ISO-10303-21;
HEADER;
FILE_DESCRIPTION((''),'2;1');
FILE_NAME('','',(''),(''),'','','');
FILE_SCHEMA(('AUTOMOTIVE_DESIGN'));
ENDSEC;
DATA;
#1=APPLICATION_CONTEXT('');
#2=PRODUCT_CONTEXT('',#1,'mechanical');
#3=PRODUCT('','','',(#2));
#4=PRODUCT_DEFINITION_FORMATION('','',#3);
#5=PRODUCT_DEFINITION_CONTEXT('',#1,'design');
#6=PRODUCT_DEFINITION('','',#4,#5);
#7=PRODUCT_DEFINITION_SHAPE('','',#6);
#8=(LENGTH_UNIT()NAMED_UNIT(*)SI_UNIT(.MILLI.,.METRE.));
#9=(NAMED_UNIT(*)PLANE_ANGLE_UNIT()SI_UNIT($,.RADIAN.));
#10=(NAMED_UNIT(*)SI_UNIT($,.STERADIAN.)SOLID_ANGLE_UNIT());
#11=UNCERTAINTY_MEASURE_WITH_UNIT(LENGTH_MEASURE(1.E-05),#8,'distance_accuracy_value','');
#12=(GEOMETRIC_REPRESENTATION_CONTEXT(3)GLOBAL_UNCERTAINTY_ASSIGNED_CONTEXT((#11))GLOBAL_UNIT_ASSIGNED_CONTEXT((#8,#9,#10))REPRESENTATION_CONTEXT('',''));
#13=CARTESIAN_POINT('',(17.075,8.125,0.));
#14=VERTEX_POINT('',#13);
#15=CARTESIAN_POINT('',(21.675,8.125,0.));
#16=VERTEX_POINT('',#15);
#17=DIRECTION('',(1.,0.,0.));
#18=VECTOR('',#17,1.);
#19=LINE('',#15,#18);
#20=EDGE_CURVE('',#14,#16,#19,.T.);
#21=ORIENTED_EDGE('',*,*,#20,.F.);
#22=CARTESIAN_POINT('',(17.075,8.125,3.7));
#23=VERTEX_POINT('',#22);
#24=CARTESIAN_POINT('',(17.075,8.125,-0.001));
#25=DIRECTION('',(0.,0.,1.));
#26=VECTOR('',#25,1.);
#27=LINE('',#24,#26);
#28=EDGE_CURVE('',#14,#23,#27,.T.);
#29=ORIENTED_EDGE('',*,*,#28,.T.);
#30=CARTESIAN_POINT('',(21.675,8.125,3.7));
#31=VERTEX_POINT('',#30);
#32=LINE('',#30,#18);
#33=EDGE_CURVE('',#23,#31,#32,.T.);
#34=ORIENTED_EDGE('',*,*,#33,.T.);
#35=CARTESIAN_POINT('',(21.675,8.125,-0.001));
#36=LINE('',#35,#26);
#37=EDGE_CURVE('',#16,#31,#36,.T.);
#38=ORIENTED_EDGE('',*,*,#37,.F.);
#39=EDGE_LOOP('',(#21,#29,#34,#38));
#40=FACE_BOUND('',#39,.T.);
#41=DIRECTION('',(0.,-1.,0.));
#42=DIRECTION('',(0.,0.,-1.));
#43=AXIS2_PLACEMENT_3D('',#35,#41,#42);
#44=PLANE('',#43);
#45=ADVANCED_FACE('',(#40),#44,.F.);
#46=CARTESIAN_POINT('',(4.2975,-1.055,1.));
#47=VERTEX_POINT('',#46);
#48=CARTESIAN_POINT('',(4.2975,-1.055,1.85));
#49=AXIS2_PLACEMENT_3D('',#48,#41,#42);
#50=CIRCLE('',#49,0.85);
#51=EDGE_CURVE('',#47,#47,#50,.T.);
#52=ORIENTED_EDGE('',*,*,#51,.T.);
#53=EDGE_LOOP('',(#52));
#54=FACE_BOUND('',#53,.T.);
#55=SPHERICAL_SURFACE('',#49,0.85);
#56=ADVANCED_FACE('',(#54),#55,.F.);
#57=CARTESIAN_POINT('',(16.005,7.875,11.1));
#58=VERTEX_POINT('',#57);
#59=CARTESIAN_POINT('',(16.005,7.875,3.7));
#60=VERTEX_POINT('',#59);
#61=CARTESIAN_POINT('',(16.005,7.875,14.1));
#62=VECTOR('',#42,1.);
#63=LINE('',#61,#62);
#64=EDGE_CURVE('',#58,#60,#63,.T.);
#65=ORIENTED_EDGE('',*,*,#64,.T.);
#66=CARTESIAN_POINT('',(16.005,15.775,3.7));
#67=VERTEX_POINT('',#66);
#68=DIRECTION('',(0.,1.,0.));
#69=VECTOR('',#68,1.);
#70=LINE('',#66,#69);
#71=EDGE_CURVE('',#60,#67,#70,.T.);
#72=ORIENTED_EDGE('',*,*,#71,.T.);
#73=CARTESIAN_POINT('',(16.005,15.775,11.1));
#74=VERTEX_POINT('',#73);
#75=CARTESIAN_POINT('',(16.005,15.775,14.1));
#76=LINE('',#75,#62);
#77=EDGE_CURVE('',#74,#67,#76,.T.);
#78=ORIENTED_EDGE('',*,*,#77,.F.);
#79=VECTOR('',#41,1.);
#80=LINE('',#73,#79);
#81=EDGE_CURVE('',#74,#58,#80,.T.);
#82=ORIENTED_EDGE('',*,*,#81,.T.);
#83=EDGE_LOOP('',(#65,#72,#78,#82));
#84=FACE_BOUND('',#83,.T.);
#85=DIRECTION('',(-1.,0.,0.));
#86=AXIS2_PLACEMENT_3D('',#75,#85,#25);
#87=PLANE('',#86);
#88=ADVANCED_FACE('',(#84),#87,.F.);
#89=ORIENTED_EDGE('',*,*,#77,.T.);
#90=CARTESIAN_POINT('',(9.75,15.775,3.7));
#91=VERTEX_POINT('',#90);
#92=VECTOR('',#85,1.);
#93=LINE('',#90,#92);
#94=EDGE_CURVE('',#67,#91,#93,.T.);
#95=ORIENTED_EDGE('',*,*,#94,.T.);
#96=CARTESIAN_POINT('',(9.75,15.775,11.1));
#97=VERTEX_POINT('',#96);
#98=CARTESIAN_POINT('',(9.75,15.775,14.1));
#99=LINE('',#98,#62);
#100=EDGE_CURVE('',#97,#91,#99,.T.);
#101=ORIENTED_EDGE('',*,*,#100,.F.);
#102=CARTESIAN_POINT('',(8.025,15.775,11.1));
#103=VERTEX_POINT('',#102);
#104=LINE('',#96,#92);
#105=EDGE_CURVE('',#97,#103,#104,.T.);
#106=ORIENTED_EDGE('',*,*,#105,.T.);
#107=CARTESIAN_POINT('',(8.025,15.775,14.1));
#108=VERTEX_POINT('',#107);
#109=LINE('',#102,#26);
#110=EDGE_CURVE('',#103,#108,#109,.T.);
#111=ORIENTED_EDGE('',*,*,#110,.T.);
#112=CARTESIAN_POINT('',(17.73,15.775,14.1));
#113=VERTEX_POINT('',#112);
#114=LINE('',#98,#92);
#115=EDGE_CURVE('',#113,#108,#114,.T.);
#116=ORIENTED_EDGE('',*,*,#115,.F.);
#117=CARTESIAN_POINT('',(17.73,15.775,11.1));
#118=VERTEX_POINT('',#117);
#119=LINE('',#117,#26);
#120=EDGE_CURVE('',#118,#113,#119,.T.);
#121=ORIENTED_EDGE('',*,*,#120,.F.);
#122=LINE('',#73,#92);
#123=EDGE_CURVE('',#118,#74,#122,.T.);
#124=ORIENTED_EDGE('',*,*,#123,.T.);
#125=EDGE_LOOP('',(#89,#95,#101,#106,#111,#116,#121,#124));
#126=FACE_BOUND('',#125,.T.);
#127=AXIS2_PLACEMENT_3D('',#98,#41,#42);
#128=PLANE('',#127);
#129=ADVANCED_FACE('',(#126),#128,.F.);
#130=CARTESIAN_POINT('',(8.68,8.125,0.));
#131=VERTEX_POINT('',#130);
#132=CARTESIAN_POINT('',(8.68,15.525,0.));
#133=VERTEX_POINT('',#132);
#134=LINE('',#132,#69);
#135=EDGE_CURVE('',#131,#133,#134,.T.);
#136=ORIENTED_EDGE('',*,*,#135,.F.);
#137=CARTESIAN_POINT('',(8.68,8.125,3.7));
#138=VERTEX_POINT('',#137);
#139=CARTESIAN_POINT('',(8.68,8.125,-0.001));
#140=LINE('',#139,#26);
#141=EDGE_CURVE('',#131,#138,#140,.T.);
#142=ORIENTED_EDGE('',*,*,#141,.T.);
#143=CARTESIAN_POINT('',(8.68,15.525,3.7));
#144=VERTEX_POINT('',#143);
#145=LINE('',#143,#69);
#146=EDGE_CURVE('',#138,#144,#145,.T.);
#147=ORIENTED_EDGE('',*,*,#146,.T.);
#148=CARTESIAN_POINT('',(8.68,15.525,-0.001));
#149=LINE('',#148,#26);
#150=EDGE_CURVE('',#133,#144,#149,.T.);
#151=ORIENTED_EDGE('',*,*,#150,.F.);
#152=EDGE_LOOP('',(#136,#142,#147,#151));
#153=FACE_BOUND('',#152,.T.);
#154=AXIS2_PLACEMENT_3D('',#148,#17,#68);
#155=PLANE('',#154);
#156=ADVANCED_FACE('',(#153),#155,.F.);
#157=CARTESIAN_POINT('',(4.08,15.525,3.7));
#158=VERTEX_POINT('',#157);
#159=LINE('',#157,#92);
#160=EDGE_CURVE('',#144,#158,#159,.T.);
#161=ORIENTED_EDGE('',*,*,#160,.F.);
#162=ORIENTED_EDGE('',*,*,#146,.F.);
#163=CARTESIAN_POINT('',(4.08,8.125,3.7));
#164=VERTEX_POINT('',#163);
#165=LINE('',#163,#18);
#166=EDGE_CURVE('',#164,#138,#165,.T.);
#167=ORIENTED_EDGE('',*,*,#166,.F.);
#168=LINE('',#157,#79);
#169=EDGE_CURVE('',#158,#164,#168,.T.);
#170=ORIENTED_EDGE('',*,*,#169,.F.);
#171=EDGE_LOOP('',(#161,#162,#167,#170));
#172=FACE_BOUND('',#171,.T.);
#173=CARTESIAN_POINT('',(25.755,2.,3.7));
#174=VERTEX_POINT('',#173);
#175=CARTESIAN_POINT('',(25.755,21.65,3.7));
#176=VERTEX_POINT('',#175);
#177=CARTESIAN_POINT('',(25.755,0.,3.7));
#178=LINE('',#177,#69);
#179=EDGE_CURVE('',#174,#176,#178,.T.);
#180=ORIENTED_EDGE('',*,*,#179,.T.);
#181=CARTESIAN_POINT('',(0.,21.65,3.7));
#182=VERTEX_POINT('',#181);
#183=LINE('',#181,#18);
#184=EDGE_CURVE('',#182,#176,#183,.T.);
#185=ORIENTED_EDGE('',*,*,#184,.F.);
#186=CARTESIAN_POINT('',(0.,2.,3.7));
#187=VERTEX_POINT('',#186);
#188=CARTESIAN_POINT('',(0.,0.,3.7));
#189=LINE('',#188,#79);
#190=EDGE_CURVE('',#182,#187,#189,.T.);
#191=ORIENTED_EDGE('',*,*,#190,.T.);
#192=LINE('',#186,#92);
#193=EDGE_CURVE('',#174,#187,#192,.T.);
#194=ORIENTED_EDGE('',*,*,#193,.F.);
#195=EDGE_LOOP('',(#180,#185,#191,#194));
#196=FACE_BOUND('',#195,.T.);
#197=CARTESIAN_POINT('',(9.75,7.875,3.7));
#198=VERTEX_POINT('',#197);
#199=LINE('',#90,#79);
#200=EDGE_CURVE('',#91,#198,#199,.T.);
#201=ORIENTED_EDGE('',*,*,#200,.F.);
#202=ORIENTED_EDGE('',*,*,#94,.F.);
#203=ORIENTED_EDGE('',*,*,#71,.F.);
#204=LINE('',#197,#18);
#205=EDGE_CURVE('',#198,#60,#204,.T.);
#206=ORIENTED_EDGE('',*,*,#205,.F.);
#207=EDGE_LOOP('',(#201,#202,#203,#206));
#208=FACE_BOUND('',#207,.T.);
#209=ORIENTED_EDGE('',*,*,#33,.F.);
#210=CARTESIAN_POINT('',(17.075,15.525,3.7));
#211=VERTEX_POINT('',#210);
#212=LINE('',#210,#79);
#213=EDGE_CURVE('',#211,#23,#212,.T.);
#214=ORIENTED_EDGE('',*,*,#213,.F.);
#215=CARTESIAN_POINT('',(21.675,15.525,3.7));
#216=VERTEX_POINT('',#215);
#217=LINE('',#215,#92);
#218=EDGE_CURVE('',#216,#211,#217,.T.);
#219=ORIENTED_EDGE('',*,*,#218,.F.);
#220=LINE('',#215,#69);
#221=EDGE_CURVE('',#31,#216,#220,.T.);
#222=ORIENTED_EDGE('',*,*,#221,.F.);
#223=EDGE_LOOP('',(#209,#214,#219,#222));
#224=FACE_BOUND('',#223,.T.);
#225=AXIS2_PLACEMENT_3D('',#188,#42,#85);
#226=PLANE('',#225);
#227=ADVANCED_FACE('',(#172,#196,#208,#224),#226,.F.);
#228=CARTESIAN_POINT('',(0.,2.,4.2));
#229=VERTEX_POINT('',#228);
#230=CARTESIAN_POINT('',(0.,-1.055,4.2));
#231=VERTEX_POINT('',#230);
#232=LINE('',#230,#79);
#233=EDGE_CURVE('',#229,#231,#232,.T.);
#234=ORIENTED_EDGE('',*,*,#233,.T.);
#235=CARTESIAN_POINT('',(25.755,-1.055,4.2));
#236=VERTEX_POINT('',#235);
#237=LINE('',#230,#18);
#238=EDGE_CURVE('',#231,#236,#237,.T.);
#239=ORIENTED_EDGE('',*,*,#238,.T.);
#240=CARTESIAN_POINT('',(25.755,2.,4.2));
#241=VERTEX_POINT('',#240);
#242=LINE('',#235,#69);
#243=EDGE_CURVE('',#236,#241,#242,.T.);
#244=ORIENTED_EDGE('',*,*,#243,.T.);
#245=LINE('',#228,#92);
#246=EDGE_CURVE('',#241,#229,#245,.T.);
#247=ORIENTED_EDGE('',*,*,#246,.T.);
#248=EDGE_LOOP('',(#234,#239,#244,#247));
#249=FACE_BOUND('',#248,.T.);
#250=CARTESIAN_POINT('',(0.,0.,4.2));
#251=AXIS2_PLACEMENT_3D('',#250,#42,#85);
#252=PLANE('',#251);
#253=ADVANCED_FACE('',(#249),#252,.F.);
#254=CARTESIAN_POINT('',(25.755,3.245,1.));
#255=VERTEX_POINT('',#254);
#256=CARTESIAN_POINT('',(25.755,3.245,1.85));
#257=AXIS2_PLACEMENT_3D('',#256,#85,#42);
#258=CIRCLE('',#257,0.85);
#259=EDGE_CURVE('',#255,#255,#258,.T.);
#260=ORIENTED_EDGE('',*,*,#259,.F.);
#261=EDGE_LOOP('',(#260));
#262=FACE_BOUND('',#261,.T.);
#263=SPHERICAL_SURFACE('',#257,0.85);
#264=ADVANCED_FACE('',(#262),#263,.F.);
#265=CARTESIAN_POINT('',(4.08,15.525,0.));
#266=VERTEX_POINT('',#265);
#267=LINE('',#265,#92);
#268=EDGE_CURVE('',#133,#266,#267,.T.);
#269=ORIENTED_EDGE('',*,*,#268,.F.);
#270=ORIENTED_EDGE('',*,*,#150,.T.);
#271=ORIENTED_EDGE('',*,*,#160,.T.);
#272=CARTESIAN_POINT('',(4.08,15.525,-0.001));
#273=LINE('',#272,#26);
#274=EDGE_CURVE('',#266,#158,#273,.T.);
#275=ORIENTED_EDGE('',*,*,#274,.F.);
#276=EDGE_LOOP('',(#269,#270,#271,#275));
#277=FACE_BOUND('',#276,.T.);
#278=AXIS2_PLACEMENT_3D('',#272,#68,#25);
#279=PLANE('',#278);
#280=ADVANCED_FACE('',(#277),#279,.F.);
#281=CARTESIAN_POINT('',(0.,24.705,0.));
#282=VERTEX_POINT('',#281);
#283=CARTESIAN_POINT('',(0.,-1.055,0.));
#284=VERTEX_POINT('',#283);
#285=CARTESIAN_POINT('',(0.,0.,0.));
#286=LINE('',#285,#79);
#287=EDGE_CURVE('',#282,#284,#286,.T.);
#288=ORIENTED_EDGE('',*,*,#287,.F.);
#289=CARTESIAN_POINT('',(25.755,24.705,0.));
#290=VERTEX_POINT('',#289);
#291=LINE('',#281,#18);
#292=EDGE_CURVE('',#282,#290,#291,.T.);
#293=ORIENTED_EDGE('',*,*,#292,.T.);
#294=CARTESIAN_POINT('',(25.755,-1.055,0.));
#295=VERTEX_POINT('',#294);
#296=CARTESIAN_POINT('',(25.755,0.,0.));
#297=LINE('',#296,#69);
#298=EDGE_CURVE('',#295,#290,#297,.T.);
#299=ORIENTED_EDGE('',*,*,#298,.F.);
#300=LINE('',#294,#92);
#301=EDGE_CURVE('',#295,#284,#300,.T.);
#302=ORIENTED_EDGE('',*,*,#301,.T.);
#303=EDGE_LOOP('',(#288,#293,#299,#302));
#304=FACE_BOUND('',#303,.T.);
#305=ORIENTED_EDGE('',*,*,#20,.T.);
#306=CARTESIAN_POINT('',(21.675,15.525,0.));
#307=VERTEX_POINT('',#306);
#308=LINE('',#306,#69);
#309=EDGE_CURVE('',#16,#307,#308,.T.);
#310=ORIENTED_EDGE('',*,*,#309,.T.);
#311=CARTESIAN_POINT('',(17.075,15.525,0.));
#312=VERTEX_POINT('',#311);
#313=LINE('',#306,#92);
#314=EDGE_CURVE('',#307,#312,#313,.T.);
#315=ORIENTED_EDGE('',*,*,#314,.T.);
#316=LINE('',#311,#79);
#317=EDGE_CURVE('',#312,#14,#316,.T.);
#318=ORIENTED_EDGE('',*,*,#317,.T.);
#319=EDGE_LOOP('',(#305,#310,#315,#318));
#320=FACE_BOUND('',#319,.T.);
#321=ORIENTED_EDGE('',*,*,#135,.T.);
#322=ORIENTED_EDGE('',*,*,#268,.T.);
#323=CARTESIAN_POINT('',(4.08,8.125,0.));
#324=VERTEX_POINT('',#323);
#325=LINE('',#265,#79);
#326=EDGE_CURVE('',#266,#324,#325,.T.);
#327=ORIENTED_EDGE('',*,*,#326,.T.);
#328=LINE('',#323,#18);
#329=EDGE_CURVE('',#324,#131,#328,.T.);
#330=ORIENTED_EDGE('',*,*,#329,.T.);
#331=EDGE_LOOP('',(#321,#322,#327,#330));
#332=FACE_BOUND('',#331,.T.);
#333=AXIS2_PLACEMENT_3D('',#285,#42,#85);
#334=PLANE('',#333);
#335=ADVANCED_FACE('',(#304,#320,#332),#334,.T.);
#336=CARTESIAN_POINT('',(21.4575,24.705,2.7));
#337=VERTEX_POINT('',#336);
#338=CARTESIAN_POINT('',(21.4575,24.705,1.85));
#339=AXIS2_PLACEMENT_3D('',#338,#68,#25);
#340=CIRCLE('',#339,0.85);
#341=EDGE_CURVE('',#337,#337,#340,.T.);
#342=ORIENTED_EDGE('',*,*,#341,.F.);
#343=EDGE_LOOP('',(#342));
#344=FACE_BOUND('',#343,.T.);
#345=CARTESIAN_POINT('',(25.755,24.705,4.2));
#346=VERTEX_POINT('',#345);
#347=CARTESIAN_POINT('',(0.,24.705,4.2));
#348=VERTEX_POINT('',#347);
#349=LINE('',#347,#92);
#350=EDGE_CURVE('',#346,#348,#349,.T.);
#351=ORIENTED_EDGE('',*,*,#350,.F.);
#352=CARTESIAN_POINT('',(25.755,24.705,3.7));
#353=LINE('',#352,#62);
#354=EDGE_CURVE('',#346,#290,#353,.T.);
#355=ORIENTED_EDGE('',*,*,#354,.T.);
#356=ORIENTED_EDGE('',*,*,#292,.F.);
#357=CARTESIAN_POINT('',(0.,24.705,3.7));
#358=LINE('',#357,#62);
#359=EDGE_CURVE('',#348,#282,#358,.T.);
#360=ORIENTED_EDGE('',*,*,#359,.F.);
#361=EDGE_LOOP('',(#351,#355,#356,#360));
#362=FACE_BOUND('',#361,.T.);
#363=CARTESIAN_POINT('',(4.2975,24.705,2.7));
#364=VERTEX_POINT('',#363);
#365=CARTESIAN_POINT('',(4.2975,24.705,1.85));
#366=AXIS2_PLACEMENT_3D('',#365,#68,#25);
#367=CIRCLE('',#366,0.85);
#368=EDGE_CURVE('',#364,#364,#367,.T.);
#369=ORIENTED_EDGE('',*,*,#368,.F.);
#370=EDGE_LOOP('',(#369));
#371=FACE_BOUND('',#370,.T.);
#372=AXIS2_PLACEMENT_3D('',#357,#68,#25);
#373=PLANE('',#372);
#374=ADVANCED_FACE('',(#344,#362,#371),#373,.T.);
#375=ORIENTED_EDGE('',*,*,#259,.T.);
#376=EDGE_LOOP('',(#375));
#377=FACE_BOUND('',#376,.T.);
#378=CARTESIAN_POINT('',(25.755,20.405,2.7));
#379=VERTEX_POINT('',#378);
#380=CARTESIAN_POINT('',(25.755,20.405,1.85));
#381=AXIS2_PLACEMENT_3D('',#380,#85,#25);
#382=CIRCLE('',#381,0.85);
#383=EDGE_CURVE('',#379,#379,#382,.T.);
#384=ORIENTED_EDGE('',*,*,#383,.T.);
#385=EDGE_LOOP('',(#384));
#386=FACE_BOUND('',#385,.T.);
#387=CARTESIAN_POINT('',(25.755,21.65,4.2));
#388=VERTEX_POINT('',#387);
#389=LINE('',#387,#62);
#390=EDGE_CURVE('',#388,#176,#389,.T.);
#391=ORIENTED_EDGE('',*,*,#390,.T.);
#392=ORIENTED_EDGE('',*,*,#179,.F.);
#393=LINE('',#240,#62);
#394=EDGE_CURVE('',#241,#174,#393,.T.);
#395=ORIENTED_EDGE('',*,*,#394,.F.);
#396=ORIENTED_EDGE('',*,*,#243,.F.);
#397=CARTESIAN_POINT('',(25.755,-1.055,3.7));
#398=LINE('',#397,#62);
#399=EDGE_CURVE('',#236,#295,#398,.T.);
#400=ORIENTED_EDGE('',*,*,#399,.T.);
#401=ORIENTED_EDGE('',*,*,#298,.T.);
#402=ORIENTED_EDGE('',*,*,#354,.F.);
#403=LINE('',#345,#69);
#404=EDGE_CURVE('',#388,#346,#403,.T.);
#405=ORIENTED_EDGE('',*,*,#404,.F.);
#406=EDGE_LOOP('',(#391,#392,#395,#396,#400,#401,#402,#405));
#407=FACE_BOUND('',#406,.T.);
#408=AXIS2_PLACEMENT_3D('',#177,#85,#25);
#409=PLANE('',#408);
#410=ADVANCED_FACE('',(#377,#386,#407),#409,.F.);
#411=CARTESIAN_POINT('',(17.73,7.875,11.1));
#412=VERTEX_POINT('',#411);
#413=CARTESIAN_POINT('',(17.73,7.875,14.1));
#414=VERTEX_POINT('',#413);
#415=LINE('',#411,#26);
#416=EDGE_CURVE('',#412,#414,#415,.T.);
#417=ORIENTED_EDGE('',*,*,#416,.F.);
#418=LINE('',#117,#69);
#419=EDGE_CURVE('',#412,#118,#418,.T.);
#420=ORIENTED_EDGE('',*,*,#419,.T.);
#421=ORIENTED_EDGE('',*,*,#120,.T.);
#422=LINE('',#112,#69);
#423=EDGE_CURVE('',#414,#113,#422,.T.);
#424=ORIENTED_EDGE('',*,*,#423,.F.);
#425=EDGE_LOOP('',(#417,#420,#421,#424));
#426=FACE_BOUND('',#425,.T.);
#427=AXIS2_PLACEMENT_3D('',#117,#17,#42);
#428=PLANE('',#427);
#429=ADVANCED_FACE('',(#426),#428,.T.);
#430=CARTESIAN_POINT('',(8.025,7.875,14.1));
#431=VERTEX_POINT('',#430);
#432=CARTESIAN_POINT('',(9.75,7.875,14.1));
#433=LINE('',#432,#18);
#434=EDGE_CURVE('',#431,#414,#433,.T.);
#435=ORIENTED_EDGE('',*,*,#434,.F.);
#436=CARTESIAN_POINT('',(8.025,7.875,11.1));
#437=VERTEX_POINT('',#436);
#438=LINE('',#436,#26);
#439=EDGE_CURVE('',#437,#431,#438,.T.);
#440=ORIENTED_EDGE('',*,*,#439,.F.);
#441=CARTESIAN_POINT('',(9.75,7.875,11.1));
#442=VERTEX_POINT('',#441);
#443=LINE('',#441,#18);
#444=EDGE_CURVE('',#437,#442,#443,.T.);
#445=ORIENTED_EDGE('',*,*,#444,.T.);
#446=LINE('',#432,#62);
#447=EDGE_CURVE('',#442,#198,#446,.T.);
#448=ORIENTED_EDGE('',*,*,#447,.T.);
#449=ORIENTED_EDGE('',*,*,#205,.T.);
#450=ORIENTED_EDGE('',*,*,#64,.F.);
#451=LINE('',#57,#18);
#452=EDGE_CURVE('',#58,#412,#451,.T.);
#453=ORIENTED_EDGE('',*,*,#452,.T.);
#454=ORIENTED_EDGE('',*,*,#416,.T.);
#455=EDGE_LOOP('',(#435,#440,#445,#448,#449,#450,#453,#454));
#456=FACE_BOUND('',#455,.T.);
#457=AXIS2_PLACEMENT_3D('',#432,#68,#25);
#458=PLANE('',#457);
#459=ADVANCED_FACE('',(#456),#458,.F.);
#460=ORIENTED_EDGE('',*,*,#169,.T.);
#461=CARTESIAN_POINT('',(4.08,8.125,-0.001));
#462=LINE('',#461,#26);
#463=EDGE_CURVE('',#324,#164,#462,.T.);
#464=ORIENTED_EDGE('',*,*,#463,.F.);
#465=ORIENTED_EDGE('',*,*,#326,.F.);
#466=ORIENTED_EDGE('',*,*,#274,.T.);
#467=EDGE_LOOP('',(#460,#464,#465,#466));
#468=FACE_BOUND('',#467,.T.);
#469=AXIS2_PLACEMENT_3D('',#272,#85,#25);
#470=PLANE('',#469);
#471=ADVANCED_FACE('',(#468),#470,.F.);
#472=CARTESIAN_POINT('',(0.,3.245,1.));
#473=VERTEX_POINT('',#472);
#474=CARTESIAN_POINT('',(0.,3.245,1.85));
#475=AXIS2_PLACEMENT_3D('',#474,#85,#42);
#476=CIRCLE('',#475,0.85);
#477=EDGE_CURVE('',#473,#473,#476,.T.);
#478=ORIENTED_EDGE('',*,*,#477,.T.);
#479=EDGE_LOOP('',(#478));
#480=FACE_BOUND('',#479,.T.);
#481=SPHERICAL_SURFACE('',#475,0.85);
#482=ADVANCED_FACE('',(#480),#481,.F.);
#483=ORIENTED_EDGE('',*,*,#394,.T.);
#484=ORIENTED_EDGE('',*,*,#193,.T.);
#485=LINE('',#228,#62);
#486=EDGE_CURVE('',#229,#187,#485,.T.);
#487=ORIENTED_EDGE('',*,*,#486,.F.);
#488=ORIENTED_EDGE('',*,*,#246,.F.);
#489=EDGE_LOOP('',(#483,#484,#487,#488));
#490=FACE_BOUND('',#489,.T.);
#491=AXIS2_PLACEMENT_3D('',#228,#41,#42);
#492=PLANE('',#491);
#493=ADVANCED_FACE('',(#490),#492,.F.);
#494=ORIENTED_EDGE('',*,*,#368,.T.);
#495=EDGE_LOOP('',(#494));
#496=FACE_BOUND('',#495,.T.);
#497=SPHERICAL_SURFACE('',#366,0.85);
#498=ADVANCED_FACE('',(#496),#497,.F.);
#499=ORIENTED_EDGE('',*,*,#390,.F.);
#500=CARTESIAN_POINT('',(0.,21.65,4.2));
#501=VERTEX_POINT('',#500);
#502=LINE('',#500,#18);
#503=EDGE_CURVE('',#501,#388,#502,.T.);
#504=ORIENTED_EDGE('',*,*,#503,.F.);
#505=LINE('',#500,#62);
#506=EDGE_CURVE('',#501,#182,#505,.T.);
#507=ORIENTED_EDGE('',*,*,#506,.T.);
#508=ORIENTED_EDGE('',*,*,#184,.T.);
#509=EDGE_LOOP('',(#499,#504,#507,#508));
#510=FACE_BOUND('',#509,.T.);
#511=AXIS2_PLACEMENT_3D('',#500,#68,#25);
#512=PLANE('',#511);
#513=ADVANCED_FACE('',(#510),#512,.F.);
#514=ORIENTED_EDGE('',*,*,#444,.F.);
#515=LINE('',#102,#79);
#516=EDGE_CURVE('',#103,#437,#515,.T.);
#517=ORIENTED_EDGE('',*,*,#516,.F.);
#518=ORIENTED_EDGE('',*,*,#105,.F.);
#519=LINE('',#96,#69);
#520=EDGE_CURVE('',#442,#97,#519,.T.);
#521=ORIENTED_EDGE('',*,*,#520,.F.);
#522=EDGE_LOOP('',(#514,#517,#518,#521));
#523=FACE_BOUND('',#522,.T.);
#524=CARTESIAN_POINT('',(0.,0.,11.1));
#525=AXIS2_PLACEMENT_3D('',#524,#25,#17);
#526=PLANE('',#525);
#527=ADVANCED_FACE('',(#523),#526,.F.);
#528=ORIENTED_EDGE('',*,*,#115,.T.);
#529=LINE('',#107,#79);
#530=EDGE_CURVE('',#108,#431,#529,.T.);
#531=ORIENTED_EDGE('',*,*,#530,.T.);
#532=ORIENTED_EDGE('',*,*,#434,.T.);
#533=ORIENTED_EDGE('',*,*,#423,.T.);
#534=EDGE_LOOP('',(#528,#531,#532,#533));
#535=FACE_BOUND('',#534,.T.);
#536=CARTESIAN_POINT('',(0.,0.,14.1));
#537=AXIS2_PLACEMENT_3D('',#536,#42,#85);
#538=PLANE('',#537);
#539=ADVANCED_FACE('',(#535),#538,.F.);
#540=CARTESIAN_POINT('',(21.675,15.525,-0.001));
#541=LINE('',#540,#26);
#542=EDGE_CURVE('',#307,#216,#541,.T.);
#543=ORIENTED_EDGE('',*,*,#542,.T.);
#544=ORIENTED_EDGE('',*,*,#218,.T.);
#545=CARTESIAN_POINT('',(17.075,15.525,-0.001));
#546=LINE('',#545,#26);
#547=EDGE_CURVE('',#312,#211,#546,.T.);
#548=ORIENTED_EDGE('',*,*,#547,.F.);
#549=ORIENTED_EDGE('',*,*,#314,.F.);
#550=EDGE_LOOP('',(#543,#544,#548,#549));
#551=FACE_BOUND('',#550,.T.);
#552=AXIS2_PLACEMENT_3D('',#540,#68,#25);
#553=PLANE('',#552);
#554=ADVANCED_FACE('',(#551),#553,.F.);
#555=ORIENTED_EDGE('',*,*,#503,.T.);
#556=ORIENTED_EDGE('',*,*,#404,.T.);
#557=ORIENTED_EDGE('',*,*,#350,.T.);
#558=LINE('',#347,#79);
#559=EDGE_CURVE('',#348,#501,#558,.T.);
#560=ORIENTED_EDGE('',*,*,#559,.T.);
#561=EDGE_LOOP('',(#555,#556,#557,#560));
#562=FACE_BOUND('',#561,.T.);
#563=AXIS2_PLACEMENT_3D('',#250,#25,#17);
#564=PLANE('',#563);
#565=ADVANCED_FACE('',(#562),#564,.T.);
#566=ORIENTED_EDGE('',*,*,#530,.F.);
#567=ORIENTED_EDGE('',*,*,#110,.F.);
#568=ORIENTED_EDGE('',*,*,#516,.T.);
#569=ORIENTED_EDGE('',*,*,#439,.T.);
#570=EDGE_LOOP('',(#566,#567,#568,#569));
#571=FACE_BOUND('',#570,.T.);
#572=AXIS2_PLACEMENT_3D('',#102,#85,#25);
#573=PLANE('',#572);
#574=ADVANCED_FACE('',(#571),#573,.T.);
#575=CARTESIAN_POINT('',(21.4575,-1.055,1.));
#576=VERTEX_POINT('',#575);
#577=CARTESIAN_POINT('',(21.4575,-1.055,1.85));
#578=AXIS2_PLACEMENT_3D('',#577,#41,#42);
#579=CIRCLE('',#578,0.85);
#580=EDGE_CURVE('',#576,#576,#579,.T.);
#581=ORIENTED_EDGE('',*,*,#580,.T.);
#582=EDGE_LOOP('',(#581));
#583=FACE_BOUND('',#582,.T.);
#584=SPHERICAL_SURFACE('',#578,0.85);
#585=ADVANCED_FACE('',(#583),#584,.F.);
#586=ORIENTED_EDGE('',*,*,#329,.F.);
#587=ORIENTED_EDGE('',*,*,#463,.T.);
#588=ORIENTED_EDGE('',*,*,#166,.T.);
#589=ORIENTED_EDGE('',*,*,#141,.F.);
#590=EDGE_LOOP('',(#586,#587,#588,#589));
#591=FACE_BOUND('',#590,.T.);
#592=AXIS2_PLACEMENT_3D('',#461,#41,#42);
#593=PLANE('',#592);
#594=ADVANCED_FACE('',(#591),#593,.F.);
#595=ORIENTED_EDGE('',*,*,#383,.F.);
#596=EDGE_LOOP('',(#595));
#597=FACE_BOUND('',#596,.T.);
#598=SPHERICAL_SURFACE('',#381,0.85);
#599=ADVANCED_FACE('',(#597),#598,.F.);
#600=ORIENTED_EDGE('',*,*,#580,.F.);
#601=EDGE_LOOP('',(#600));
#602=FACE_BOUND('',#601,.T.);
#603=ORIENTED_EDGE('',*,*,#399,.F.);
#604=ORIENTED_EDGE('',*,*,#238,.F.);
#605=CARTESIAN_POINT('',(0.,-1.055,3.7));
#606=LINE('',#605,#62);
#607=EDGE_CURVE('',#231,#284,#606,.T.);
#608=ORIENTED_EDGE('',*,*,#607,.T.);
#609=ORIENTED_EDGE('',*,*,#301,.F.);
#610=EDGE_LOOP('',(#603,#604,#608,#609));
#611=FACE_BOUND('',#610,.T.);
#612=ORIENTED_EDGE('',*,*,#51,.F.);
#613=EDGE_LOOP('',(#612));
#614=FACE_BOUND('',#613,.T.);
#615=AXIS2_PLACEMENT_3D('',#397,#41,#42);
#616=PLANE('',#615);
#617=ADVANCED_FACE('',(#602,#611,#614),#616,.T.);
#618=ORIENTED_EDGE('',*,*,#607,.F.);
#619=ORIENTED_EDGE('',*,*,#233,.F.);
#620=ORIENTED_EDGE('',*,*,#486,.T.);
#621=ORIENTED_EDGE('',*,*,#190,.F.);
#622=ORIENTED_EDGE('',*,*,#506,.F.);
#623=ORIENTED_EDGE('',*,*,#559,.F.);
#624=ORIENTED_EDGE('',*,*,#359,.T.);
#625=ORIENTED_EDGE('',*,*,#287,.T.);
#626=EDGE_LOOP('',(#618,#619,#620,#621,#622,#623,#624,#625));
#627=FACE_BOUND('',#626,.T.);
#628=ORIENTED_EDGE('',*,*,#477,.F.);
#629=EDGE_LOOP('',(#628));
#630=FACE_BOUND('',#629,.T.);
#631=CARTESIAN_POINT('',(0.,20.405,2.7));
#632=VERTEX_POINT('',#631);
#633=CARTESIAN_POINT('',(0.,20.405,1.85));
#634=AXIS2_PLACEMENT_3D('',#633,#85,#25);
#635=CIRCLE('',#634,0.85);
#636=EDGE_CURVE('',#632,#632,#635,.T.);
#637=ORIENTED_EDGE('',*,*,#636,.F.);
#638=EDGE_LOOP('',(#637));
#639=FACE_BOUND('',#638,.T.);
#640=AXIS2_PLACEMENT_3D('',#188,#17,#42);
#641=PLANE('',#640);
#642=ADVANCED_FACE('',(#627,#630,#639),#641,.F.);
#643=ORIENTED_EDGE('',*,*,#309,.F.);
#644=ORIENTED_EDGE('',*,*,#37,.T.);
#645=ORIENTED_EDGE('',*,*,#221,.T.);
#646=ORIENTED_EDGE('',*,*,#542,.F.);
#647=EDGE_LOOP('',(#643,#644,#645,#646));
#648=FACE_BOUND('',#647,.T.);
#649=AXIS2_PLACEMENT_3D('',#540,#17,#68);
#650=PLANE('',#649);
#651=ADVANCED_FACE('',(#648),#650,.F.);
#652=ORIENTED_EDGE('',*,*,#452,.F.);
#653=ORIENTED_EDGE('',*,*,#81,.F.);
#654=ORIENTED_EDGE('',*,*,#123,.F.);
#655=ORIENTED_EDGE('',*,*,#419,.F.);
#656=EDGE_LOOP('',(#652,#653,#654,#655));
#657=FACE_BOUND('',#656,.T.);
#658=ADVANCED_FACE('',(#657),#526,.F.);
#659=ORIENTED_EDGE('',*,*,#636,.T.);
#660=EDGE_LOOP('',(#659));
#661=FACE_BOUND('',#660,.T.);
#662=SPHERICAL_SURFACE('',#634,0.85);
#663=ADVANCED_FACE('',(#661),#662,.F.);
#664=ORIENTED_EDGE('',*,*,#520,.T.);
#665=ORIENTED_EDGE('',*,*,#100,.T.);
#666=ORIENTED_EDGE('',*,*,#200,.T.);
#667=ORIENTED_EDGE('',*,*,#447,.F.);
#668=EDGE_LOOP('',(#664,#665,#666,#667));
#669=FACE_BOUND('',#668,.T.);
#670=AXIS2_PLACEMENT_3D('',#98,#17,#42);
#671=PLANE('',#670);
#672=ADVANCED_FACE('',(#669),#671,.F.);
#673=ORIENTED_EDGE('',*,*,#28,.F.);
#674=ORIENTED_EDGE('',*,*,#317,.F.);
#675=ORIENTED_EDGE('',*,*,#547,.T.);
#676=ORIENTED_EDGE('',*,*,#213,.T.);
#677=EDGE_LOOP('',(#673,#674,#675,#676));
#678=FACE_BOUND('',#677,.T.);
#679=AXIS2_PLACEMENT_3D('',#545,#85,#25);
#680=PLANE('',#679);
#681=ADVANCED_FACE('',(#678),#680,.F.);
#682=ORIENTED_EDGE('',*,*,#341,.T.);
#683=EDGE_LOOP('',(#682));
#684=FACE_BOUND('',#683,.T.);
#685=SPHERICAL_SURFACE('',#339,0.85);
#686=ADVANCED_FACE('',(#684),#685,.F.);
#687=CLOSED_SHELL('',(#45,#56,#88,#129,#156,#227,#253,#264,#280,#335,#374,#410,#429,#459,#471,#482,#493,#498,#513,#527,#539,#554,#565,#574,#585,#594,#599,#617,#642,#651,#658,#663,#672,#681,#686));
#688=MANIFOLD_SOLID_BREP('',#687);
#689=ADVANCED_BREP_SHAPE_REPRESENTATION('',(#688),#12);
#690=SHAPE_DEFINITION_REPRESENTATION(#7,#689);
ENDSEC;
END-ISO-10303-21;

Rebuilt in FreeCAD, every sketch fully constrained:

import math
import FreeCAD as App
import Part
import Sketcher

V = App.Vector


def edges_at(feature, points):
    """Names of the edges that pass closest to the given points."""
    edges = feature.Shape.Edges
    near = lambda p: min(range(len(edges)), key=lambda i: edges[i].distToShape(Part.Vertex(*p))[0])
    return sorted({f"Edge{near(p) + 1}" for p in points})


def add_polygon(sketch, points):
    """Adds a closed chain of lines whose ends are joined by coincident constraints."""
    first, n = sketch.GeometryCount, len(points)
    for a, b in zip(points, points[1:] + points[:1]):
        sketch.addGeometry(Part.LineSegment(App.Vector(*a, 0), App.Vector(*b, 0)), False)
    for i in range(n):
        sketch.addConstraint(Sketcher.Constraint("Coincident", first + i, 2, first + (i + 1) % n, 1))

doc = App.newDocument("Part")
body = doc.addObject("PartDesign::Body", "Body")

# Sketch on XY plane
sketch1 = doc.addObject("Sketcher::SketchObject", "Sketch")
body.addObject(sketch1)
sketch1.AttachmentSupport = (doc.XY_Plane, [""])
sketch1.MapMode = "FlatFace"
add_polygon(sketch1, [(0, 0), (26, 0), (26, 24), (0, 24)])  # lines 0-3
sketch1.addConstraint(Sketcher.Constraint("Horizontal", 0))
sketch1.addConstraint(Sketcher.Constraint("Vertical", 1))
sketch1.addConstraint(Sketcher.Constraint("Horizontal", 2))
sketch1.addConstraint(Sketcher.Constraint("Vertical", 3))
sketch1.addConstraint(Sketcher.Constraint("Coincident", 3, 2, -1, 1))
sketch1.addConstraint(Sketcher.Constraint("DistanceY", 1, 1, 1, 2, 23.65))
sketch1.addConstraint(Sketcher.Constraint("DistanceX", 0, 1, 0, 2, 25.755))
pad1 = doc.addObject("PartDesign::Pad", "Pad")
body.addObject(pad1)
pad1.Profile = sketch1
pad1.Length = 3.7

# Sketch on XY plane
sketch2 = doc.addObject("Sketcher::SketchObject", "Sketch001")
body.addObject(sketch2)
sketch2.AttachmentSupport = (doc.XY_Plane, [""])
sketch2.MapMode = "FlatFace"
sketch2.AttachmentOffset = App.Placement(V(0, 0, 3.7), App.Rotation())
add_polygon(sketch2, [(4.1, 15.5), (4.1, 8.1), (8.7, 8.1), (8.7, 15.5)])  # lines 0-3
sketch2.addConstraint(Sketcher.Constraint("Vertical", 0))
sketch2.addConstraint(Sketcher.Constraint("Horizontal", 1))
sketch2.addConstraint(Sketcher.Constraint("Vertical", 2))
sketch2.addConstraint(Sketcher.Constraint("Horizontal", 3))
sketch2.addConstraint(Sketcher.Constraint("DistanceX", 1, 1, 1, 2, 4.6))
sketch2.addConstraint(Sketcher.Constraint("DistanceY", 0, 2, 0, 1, 7.4))
sketch2.addConstraint(Sketcher.Constraint("DistanceX", -1, 1, 0, 2, 4.08))
sketch2.addConstraint(Sketcher.Constraint("DistanceY", -1, 1, 0, 2, 8.125))
pocket1 = doc.addObject("PartDesign::Pocket", "Pocket")
body.addObject(pocket1)
pocket1.Profile = sketch2
pocket1.Type = "UpToFirst"

# Sketch on XY plane
sketch3 = doc.addObject("Sketcher::SketchObject", "Sketch002")
body.addObject(sketch3)
sketch3.AttachmentSupport = (doc.XY_Plane, [""])
sketch3.MapMode = "FlatFace"
sketch3.AttachmentOffset = App.Placement(V(0, 0, 3.7), App.Rotation())
add_polygon(sketch3, [(17.1, 15.5), (17.1, 8.1), (21.7, 8.1), (21.7, 15.5)])  # lines 0-3
sketch3.addConstraint(Sketcher.Constraint("Vertical", 0))
sketch3.addConstraint(Sketcher.Constraint("Horizontal", 1))
sketch3.addConstraint(Sketcher.Constraint("Vertical", 2))
sketch3.addConstraint(Sketcher.Constraint("Horizontal", 3))
sketch3.addConstraint(Sketcher.Constraint("DistanceX", 1, 1, 1, 2, 4.6))
sketch3.addConstraint(Sketcher.Constraint("DistanceY", 0, 2, 0, 1, 7.4))
sketch3.addConstraint(Sketcher.Constraint("DistanceX", -1, 1, 0, 2, 17.075))
sketch3.addConstraint(Sketcher.Constraint("DistanceY", -1, 1, 0, 2, 8.125))
pocket2 = doc.addObject("PartDesign::Pocket", "Pocket001")
body.addObject(pocket2)
pocket2.Profile = sketch3
pocket2.Type = "UpToFirst"

# Sketch on XY plane
sketch4 = doc.addObject("Sketcher::SketchObject", "Sketch003")
body.addObject(sketch4)
sketch4.AttachmentSupport = (doc.XY_Plane, [""])
sketch4.MapMode = "FlatFace"
sketch4.AttachmentOffset = App.Placement(V(0, 0, 3.7), App.Rotation())
add_polygon(sketch4, [(0, 23.6), (0, 21.6), (25.8, 21.6), (25.8, 23.6)])  # lines 0-3
add_polygon(sketch4, [(0, 2), (0, 0), (25.8, 0), (25.8, 2)])  # lines 4-7
sketch4.addConstraint(Sketcher.Constraint("Vertical", 0))
sketch4.addConstraint(Sketcher.Constraint("Horizontal", 1))
sketch4.addConstraint(Sketcher.Constraint("Vertical", 2))
sketch4.addConstraint(Sketcher.Constraint("Horizontal", 3))
sketch4.addConstraint(Sketcher.Constraint("Vertical", 4))
sketch4.addConstraint(Sketcher.Constraint("Horizontal", 5))
sketch4.addConstraint(Sketcher.Constraint("Vertical", 6))
sketch4.addConstraint(Sketcher.Constraint("Horizontal", 7))
sketch4.addConstraint(Sketcher.Constraint("Coincident", 4, 2, -1, 1))
sketch4.addConstraint(Sketcher.Constraint("PointOnObject", 0, 2, -2))
sketch4.addConstraint(Sketcher.Constraint("Vertical", 2, 2, 5, 2))
sketch4.addConstraint(Sketcher.Constraint("Equal", 2, 4))
sketch4.addConstraint(Sketcher.Constraint("DistanceY", 0, 2, 0, 1, 2.0))
sketch4.addConstraint(Sketcher.Constraint("DistanceX", 1, 1, 1, 2, 25.755))
sketch4.addConstraint(Sketcher.Constraint("DistanceY", -1, 1, 0, 2, 21.65))
pad2 = doc.addObject("PartDesign::Pad", "Pad001")
body.addObject(pad2)
pad2.Profile = sketch4
pad2.Length = 1

# Sketch on XY plane
sketch5 = doc.addObject("Sketcher::SketchObject", "Sketch004")
body.addObject(sketch5)
sketch5.AttachmentSupport = (doc.XY_Plane, [""])
sketch5.MapMode = "FlatFace"
sketch5.AttachmentOffset = App.Placement(V(0, 0, 3.7), App.Rotation())
add_polygon(sketch5, [(9.8, 15.8), (9.8, 7.9), (16, 7.9), (16, 15.8)])  # lines 0-3
add_polygon(sketch5, [(0, 15.8), (0, 7.9), (3, 7.9), (3, 15.8)])  # lines 4-7
add_polygon(sketch5, [(22.8, 15.8), (22.8, 7.9), (25.8, 7.9), (25.8, 15.8)])  # lines 8-11
sketch5.addConstraint(Sketcher.Constraint("Vertical", 0))
sketch5.addConstraint(Sketcher.Constraint("Horizontal", 1))
sketch5.addConstraint(Sketcher.Constraint("Vertical", 2))
sketch5.addConstraint(Sketcher.Constraint("Horizontal", 3))
sketch5.addConstraint(Sketcher.Constraint("Vertical", 4))
sketch5.addConstraint(Sketcher.Constraint("Horizontal", 5))
sketch5.addConstraint(Sketcher.Constraint("Vertical", 6))
sketch5.addConstraint(Sketcher.Constraint("Horizontal", 7))
sketch5.addConstraint(Sketcher.Constraint("Vertical", 8))
sketch5.addConstraint(Sketcher.Constraint("Horizontal", 9))
sketch5.addConstraint(Sketcher.Constraint("Vertical", 10))
sketch5.addConstraint(Sketcher.Constraint("Horizontal", 11))
sketch5.addConstraint(Sketcher.Constraint("PointOnObject", 4, 2, -2))
sketch5.addConstraint(Sketcher.Constraint("Horizontal", 1, 2, 4, 2))
sketch5.addConstraint(Sketcher.Constraint("Horizontal", 3, 2, 6, 2))
sketch5.addConstraint(Sketcher.Constraint("Horizontal", 5, 2, 8, 2))
sketch5.addConstraint(Sketcher.Constraint("Horizontal", 7, 2, 10, 2))
sketch5.addConstraint(Sketcher.Constraint("Equal", 7, 9))
sketch5.addConstraint(Sketcher.Constraint("DistanceY", 0, 2, 0, 1, 7.9))
sketch5.addConstraint(Sketcher.Constraint("DistanceX", 5, 1, 5, 2, 2.95))
sketch5.addConstraint(Sketcher.Constraint("DistanceX", 5, 2, 0, 2, 6.8))
sketch5.addConstraint(Sketcher.Constraint("DistanceX", 1, 2, 8, 2, 6.8))
sketch5.addConstraint(Sketcher.Constraint("DistanceX", 1, 1, 1, 2, 6.255))
sketch5.addConstraint(Sketcher.Constraint("DistanceY", -1, 1, 0, 2, 7.875))
pad3 = doc.addObject("PartDesign::Pad", "Pad002")
body.addObject(pad3)
pad3.Profile = sketch5
pad3.Length = 10.4

# Sketch on XY plane
sketch6 = doc.addObject("Sketcher::SketchObject", "Sketch005")
body.addObject(sketch6)
sketch6.AttachmentSupport = (doc.XY_Plane, [""])
sketch6.MapMode = "FlatFace"
sketch6.AttachmentOffset = App.Placement(V(0, 0, 14.1), App.Rotation())
add_polygon(sketch6, [(16, 15.8), (16, 7.9), (17.7, 7.9), (17.7, 15.8)])  # lines 0-3
add_polygon(sketch6, [(8, 15.8), (8, 7.9), (9.8, 7.9), (9.8, 15.8)])  # lines 4-7
sketch6.addConstraint(Sketcher.Constraint("Vertical", 0))
sketch6.addConstraint(Sketcher.Constraint("Horizontal", 1))
sketch6.addConstraint(Sketcher.Constraint("Vertical", 2))
sketch6.addConstraint(Sketcher.Constraint("Horizontal", 3))
sketch6.addConstraint(Sketcher.Constraint("Vertical", 4))
sketch6.addConstraint(Sketcher.Constraint("Horizontal", 5))
sketch6.addConstraint(Sketcher.Constraint("Vertical", 6))
sketch6.addConstraint(Sketcher.Constraint("Horizontal", 7))
sketch6.addConstraint(Sketcher.Constraint("Horizontal", 1, 2, 4, 2))
sketch6.addConstraint(Sketcher.Constraint("Horizontal", 3, 2, 6, 2))
sketch6.addConstraint(Sketcher.Constraint("Equal", 3, 5))
sketch6.addConstraint(Sketcher.Constraint("DistanceY", 0, 2, 0, 1, 7.9))
sketch6.addConstraint(Sketcher.Constraint("DistanceX", 1, 1, 1, 2, 1.725))
sketch6.addConstraint(Sketcher.Constraint("DistanceX", -1, 1, 1, 2, 17.73))
sketch6.addConstraint(Sketcher.Constraint("DistanceX", -1, 1, 5, 2, 9.75))
sketch6.addConstraint(Sketcher.Constraint("DistanceY", -1, 1, 0, 2, 7.875))
pad4 = doc.addObject("PartDesign::Pad", "Pad003")
body.addObject(pad4)
pad4.Profile = sketch6
pad4.Length = 3
pad4.Reversed = True

# Sketch on XZ plane
sketch7 = doc.addObject("Sketcher::SketchObject", "Sketch006")
body.addObject(sketch7)
sketch7.AttachmentSupport = (doc.XZ_Plane, [""])
sketch7.MapMode = "FlatFace"
sketch7.AttachmentOffset = App.Placement(V(0, 0, -15.775), App.Rotation())
add_polygon(sketch7, [(0, 14.1), (0, 4.7), (3, 4.7), (3, 14.1)])  # lines 0-3
add_polygon(sketch7, [(22.8, 14.1), (22.8, 4.7), (25.8, 4.7), (25.8, 14.1)])  # lines 4-7
sketch7.addConstraint(Sketcher.Constraint("Vertical", 0))
sketch7.addConstraint(Sketcher.Constraint("Horizontal", 1))
sketch7.addConstraint(Sketcher.Constraint("Vertical", 2))
sketch7.addConstraint(Sketcher.Constraint("Horizontal", 3))
sketch7.addConstraint(Sketcher.Constraint("Vertical", 4))
sketch7.addConstraint(Sketcher.Constraint("Horizontal", 5))
sketch7.addConstraint(Sketcher.Constraint("Vertical", 6))
sketch7.addConstraint(Sketcher.Constraint("Horizontal", 7))
sketch7.addConstraint(Sketcher.Constraint("PointOnObject", 0, 2, -2))
sketch7.addConstraint(Sketcher.Constraint("Horizontal", 1, 2, 4, 2))
sketch7.addConstraint(Sketcher.Constraint("Horizontal", 3, 2, 6, 2))
sketch7.addConstraint(Sketcher.Constraint("Equal", 3, 5))
sketch7.addConstraint(Sketcher.Constraint("DistanceY", 0, 2, 0, 1, 9.4))
sketch7.addConstraint(Sketcher.Constraint("DistanceX", 1, 1, 1, 2, 2.95))
sketch7.addConstraint(Sketcher.Constraint("DistanceY", -1, 1, 0, 2, 4.7))
sketch7.addConstraint(Sketcher.Constraint("DistanceX", -1, 1, 4, 2, 22.805))
pocket3 = doc.addObject("PartDesign::Pocket", "Pocket002")
body.addObject(pocket3)
pocket3.Profile = sketch7
pocket3.Length = 7.9
pocket3.Reversed = True
doc.recompute()

fillet = doc.addObject("PartDesign::Fillet", "Fillet")
body.addObject(fillet)
fillet.Base = (pocket3, edges_at(pocket3, [(2.95, 11.825, 4.7), (22.805, 11.825, 4.7)]))
fillet.Radius = 0.4

# Sketch on XZ plane
sketch8 = doc.addObject("Sketcher::SketchObject", "Sketch007")
body.addObject(sketch8)
sketch8.AttachmentSupport = (doc.XZ_Plane, [""])
sketch8.MapMode = "FlatFace"
sketch8.AttachmentOffset = App.Placement(V(0, 0, -15.775), App.Rotation())
sketch8.addGeometry(Part.LineSegment(V(2.95, 3.7, 0), V(2.95, 4.3, 0)), False)
sketch8.addGeometry(Part.ArcOfCircle(Part.Circle(V(2.55, 4.3, 0), V(0, 0, 1), 0.4), math.radians(0), math.radians(90)), False)
sketch8.addGeometry(Part.LineSegment(V(2.55, 4.7, 0), V(0, 4.7, 0)), False)
sketch8.addGeometry(Part.LineSegment(V(0, 4.7, 0), V(0, 3.7, 0)), False)
sketch8.addGeometry(Part.LineSegment(V(0, 3.7, 0), V(2.95, 3.7, 0)), False)
sketch8.addGeometry(Part.LineSegment(V(25.75, 4.7, 0), V(23.2, 4.7, 0)), False)
sketch8.addGeometry(Part.ArcOfCircle(Part.Circle(V(23.21, 4.3, 0), V(0, 0, 1), 0.4), math.radians(90), math.radians(180)), False)
sketch8.addGeometry(Part.LineSegment(V(22.8, 4.3, 0), V(22.8, 3.7, 0)), False)
sketch8.addGeometry(Part.LineSegment(V(22.8, 3.7, 0), V(25.75, 3.7, 0)), False)
sketch8.addGeometry(Part.LineSegment(V(25.75, 3.7, 0), V(25.75, 4.7, 0)), False)
sketch8.addConstraint(Sketcher.Constraint("Tangent", 0, 2, 1, 1))
sketch8.addConstraint(Sketcher.Constraint("Tangent", 1, 2, 2, 1))
sketch8.addConstraint(Sketcher.Constraint("Coincident", 2, 2, 3, 1))
sketch8.addConstraint(Sketcher.Constraint("Coincident", 3, 2, 4, 1))
sketch8.addConstraint(Sketcher.Constraint("Coincident", 4, 2, 0, 1))
sketch8.addConstraint(Sketcher.Constraint("Tangent", 5, 2, 6, 1))
sketch8.addConstraint(Sketcher.Constraint("Tangent", 6, 2, 7, 1))
sketch8.addConstraint(Sketcher.Constraint("Coincident", 7, 2, 8, 1))
sketch8.addConstraint(Sketcher.Constraint("Coincident", 8, 2, 9, 1))
sketch8.addConstraint(Sketcher.Constraint("Coincident", 9, 2, 5, 1))
sketch8.addConstraint(Sketcher.Constraint("Vertical", 0))
sketch8.addConstraint(Sketcher.Constraint("Horizontal", 2))
sketch8.addConstraint(Sketcher.Constraint("Vertical", 3))
sketch8.addConstraint(Sketcher.Constraint("Horizontal", 4))
sketch8.addConstraint(Sketcher.Constraint("Horizontal", 5))
sketch8.addConstraint(Sketcher.Constraint("Vertical", 7))
sketch8.addConstraint(Sketcher.Constraint("Horizontal", 8))
sketch8.addConstraint(Sketcher.Constraint("Vertical", 9))
sketch8.addConstraint(Sketcher.Constraint("Equal", 1, 6))
sketch8.addConstraint(Sketcher.Constraint("PointOnObject", 2, 2, -2))
sketch8.addConstraint(Sketcher.Constraint("Horizontal", 1, 3, 6, 3))
sketch8.addConstraint(Sketcher.Constraint("Horizontal", 4, 2, 7, 2))
sketch8.addConstraint(Sketcher.Constraint("Equal", 2, 5))
sketch8.addConstraint(Sketcher.Constraint("Radius", 1, 0.4))
sketch8.addConstraint(Sketcher.Constraint("DistanceY", 3, 2, 3, 1, 1.0))
sketch8.addConstraint(Sketcher.Constraint("DistanceX", 2, 2, 2, 1, 2.55))
sketch8.addConstraint(Sketcher.Constraint("DistanceY", -1, 1, 1, 3, 4.3))
sketch8.addConstraint(Sketcher.Constraint("DistanceX", -1, 1, 6, 3, 23.205))
pocket4 = doc.addObject("PartDesign::Pocket", "Pocket003")
body.addObject(pocket4)
pocket4.Profile = sketch8
pocket4.Length = 7.9
pocket4.Reversed = True

# Sketch on YZ plane
sketch9 = doc.addObject("Sketcher::SketchObject", "Sketch008")
body.addObject(sketch9)
sketch9.AttachmentSupport = (doc.YZ_Plane, [""])
sketch9.MapMode = "FlatFace"
sketch9.AttachmentOffset = App.Placement(V(0, 0, 25.755), App.Rotation())
add_polygon(sketch9, [(23.6, 3.7), (21.6, 3.7), (21.6, 4.7), (23.6, 4.7)])  # lines 0-3
add_polygon(sketch9, [(2, 3.7), (0, 3.7), (0, 4.7), (2, 4.7)])  # lines 4-7
sketch9.addConstraint(Sketcher.Constraint("Horizontal", 0))
sketch9.addConstraint(Sketcher.Constraint("Vertical", 1))
sketch9.addConstraint(Sketcher.Constraint("Horizontal", 2))
sketch9.addConstraint(Sketcher.Constraint("Vertical", 3))
sketch9.addConstraint(Sketcher.Constraint("Horizontal", 4))
sketch9.addConstraint(Sketcher.Constraint("Vertical", 5))
sketch9.addConstraint(Sketcher.Constraint("Horizontal", 6))
sketch9.addConstraint(Sketcher.Constraint("Vertical", 7))
sketch9.addConstraint(Sketcher.Constraint("PointOnObject", 4, 2, -2))
sketch9.addConstraint(Sketcher.Constraint("Horizontal", 3, 2, 4, 2))
sketch9.addConstraint(Sketcher.Constraint("Horizontal", 2, 2, 5, 2))
sketch9.addConstraint(Sketcher.Constraint("Equal", 2, 4))
sketch9.addConstraint(Sketcher.Constraint("DistanceX", 0, 2, 0, 1, 2.0))
sketch9.addConstraint(Sketcher.Constraint("DistanceY", 1, 1, 1, 2, 1.0))
sketch9.addConstraint(Sketcher.Constraint("DistanceY", -1, 1, 0, 2, 3.7))
sketch9.addConstraint(Sketcher.Constraint("DistanceX", -1, 1, 0, 2, 21.65))
pocket5 = doc.addObject("PartDesign::Pocket", "Pocket004")
body.addObject(pocket5)
pocket5.Profile = sketch9
pocket5.Length = 25.755

# Sketch on XY plane
sketch10 = doc.addObject("Sketcher::SketchObject", "Sketch009")
body.addObject(sketch10)
sketch10.AttachmentSupport = (doc.XY_Plane, [""])
sketch10.MapMode = "FlatFace"
sketch10.AttachmentOffset = App.Placement(V(0, 0, 3.7), App.Rotation())
add_polygon(sketch10, [(25.8, 24.7), (25.8, 23.6), (0, 23.6), (0, 24.7)])  # lines 0-3
add_polygon(sketch10, [(25.8, 0), (25.8, -1.1), (0, -1.1), (0, 0)])  # lines 4-7
sketch10.addConstraint(Sketcher.Constraint("Vertical", 0))
sketch10.addConstraint(Sketcher.Constraint("Horizontal", 1))
sketch10.addConstraint(Sketcher.Constraint("Vertical", 2))
sketch10.addConstraint(Sketcher.Constraint("Horizontal", 3))
sketch10.addConstraint(Sketcher.Constraint("Vertical", 4))
sketch10.addConstraint(Sketcher.Constraint("Horizontal", 5))
sketch10.addConstraint(Sketcher.Constraint("Vertical", 6))
sketch10.addConstraint(Sketcher.Constraint("Horizontal", 7))
sketch10.addConstraint(Sketcher.Constraint("Coincident", 6, 2, -1, 1))
sketch10.addConstraint(Sketcher.Constraint("PointOnObject", 1, 2, -2))
sketch10.addConstraint(Sketcher.Constraint("Vertical", 3, 2, 4, 2))
sketch10.addConstraint(Sketcher.Constraint("Equal", 2, 4))
sketch10.addConstraint(Sketcher.Constraint("DistanceX", 1, 2, 1, 1, 25.755))
sketch10.addConstraint(Sketcher.Constraint("DistanceY", 0, 2, 0, 1, 1.055))
sketch10.addConstraint(Sketcher.Constraint("DistanceY", -1, 1, 0, 2, 23.65))
pad5 = doc.addObject("PartDesign::Pad", "Pad004")
body.addObject(pad5)
pad5.Profile = sketch10
pad5.Length = 3.7
pad5.Reversed = True

# Sketch on YZ plane
sketch11 = doc.addObject("Sketcher::SketchObject", "Sketch010")
body.addObject(sketch11)
sketch11.AttachmentSupport = (doc.YZ_Plane, [""])
sketch11.MapMode = "FlatFace"
sketch11.AttachmentOffset = App.Placement(V(0, 0, 25.755), App.Rotation())
sketch11.addGeometry(Part.LineSegment(V(19.6, 1.9, 0), V(21.3, 1.9, 0)), False)
sketch11.addGeometry(Part.ArcOfCircle(Part.Circle(V(20.4, 1.9, 0), V(0, 0, 1), 0.8), math.radians(0), math.radians(180)), False)
sketch11.addGeometry(Part.LineSegment(V(2.4, 1.9, 0), V(4.1, 1.9, 0)), False)
sketch11.addGeometry(Part.ArcOfCircle(Part.Circle(V(3.2, 1.9, 0), V(0, 0, 1), 0.8), math.radians(0), math.radians(180)), False)
sketch11.addGeometry(Part.LineSegment(V(21.3, 1.9, 0), V(2.4, 1.9, 0)), True)  # axis
sketch11.addConstraint(Sketcher.Constraint("Coincident", 0, 1, 1, 2))
sketch11.addConstraint(Sketcher.Constraint("Coincident", 1, 1, 0, 2))
sketch11.addConstraint(Sketcher.Constraint("Coincident", 2, 1, 3, 2))
sketch11.addConstraint(Sketcher.Constraint("Coincident", 3, 1, 2, 2))
sketch11.addConstraint(Sketcher.Constraint("Horizontal", 0))
sketch11.addConstraint(Sketcher.Constraint("Horizontal", 2))
sketch11.addConstraint(Sketcher.Constraint("Horizontal", 4))
sketch11.addConstraint(Sketcher.Constraint("Coincident", 4, 1, 1, 1))
sketch11.addConstraint(Sketcher.Constraint("Coincident", 4, 2, 2, 1))
sketch11.addConstraint(Sketcher.Constraint("Equal", 1, 3))
sketch11.addConstraint(Sketcher.Constraint("Horizontal", 1, 3, 3, 3))
sketch11.addConstraint(Sketcher.Constraint("Horizontal", 3, 3, 0, 1))
sketch11.addConstraint(Sketcher.Constraint("Radius", 1, 0.85))
sketch11.addConstraint(Sketcher.Constraint("DistanceX", 4, 2, 4, 1, 18.86))
sketch11.addConstraint(Sketcher.Constraint("DistanceY", -1, 1, 1, 3, 1.85))
sketch11.addConstraint(Sketcher.Constraint("DistanceX", -1, 1, 1, 3, 20.405))
groove = doc.addObject("PartDesign::Groove", "Groove")
body.addObject(groove)
groove.Profile = sketch11
groove.ReferenceAxis = (sketch11, ["Axis0"])
groove.Angle = 180
doc.recompute()

datumplane = doc.addObject("PartDesign::Plane", "DatumPlane")
body.addObject(datumplane)
datumplane.AttachmentSupport = (doc.YZ_Plane, [""])
datumplane.MapMode = "FlatFace"
datumplane.AttachmentOffset = App.Placement(V(0, 0, 12.8775), App.Rotation())
mirrored = doc.addObject("PartDesign::Mirrored", "Mirrored")
body.addObject(mirrored)
mirrored.Originals = [groove]
mirrored.MirrorPlane = (datumplane, [""])
body.Tip = mirrored

# Sketch on XZ plane
sketch12 = doc.addObject("Sketcher::SketchObject", "Sketch011")
body.addObject(sketch12)
sketch12.AttachmentSupport = (doc.XZ_Plane, [""])
sketch12.MapMode = "FlatFace"
sketch12.AttachmentOffset = App.Placement(V(0, 0, -24.705), App.Rotation())
sketch12.addGeometry(Part.LineSegment(V(5.1, 1.9, 0), V(3.4, 1.9, 0)), False)
sketch12.addGeometry(Part.ArcOfCircle(Part.Circle(V(4.3, 1.9, 0), V(0, 0, 1), 0.8), math.radians(0), math.radians(180)), False)
sketch12.addGeometry(Part.LineSegment(V(22.3, 1.9, 0), V(20.6, 1.9, 0)), False)
sketch12.addGeometry(Part.ArcOfCircle(Part.Circle(V(21.5, 1.9, 0), V(0, 0, 1), 0.8), math.radians(0), math.radians(180)), False)
sketch12.addGeometry(Part.LineSegment(V(3.4, 1.9, 0), V(22.3, 1.9, 0)), True)  # axis
sketch12.addConstraint(Sketcher.Constraint("Coincident", 0, 1, 1, 1))
sketch12.addConstraint(Sketcher.Constraint("Coincident", 1, 2, 0, 2))
sketch12.addConstraint(Sketcher.Constraint("Coincident", 2, 1, 3, 1))
sketch12.addConstraint(Sketcher.Constraint("Coincident", 3, 2, 2, 2))
sketch12.addConstraint(Sketcher.Constraint("Horizontal", 0))
sketch12.addConstraint(Sketcher.Constraint("Horizontal", 2))
sketch12.addConstraint(Sketcher.Constraint("Horizontal", 4))
sketch12.addConstraint(Sketcher.Constraint("Coincident", 4, 1, 1, 2))
sketch12.addConstraint(Sketcher.Constraint("Coincident", 4, 2, 2, 1))
sketch12.addConstraint(Sketcher.Constraint("Equal", 1, 3))
sketch12.addConstraint(Sketcher.Constraint("Horizontal", 1, 3, 3, 3))
sketch12.addConstraint(Sketcher.Constraint("Horizontal", 3, 3, 0, 1))
sketch12.addConstraint(Sketcher.Constraint("Radius", 1, 0.85))
sketch12.addConstraint(Sketcher.Constraint("DistanceX", 4, 1, 4, 2, 18.86))
sketch12.addConstraint(Sketcher.Constraint("DistanceY", -1, 1, 1, 3, 1.85))
sketch12.addConstraint(Sketcher.Constraint("DistanceX", -1, 1, 1, 3, 4.2975))
groove2 = doc.addObject("PartDesign::Groove", "Groove001")
body.addObject(groove2)
groove2.Profile = sketch12
groove2.ReferenceAxis = (sketch12, ["Axis0"])
groove2.Angle = 360
doc.recompute()

datumplane2 = doc.addObject("PartDesign::Plane", "DatumPlane001")
body.addObject(datumplane2)
datumplane2.AttachmentSupport = (doc.XZ_Plane, [""])
datumplane2.MapMode = "FlatFace"
datumplane2.AttachmentOffset = App.Placement(V(0, 0, -11.825), App.Rotation())
mirrored2 = doc.addObject("PartDesign::Mirrored", "Mirrored001")
body.addObject(mirrored2)
mirrored2.Originals = [groove2]
mirrored2.MirrorPlane = (datumplane2, [""])
body.Tip = mirrored2

# Sketch on XY plane
sketch13 = doc.addObject("Sketcher::SketchObject", "Sketch012")
body.addObject(sketch13)
sketch13.AttachmentSupport = (doc.XY_Plane, [""])
sketch13.MapMode = "FlatFace"
sketch13.AttachmentOffset = App.Placement(V(0, 0, 3.7), App.Rotation())
add_polygon(sketch13, [(0, 24.7), (0, 21.6), (25.8, 21.6), (25.8, 24.7)])  # lines 0-3
add_polygon(sketch13, [(0, 2), (0, -1.1), (25.8, -1.1), (25.8, 2)])  # lines 4-7
sketch13.addConstraint(Sketcher.Constraint("Vertical", 0))
sketch13.addConstraint(Sketcher.Constraint("Horizontal", 1))
sketch13.addConstraint(Sketcher.Constraint("Vertical", 2))
sketch13.addConstraint(Sketcher.Constraint("Horizontal", 3))
sketch13.addConstraint(Sketcher.Constraint("Vertical", 4))
sketch13.addConstraint(Sketcher.Constraint("Horizontal", 5))
sketch13.addConstraint(Sketcher.Constraint("Vertical", 6))
sketch13.addConstraint(Sketcher.Constraint("Horizontal", 7))
sketch13.addConstraint(Sketcher.Constraint("PointOnObject", 0, 2, -2))
sketch13.addConstraint(Sketcher.Constraint("PointOnObject", 4, 2, -2))
sketch13.addConstraint(Sketcher.Constraint("Vertical", 2, 2, 5, 2))
sketch13.addConstraint(Sketcher.Constraint("Equal", 2, 4))
sketch13.addConstraint(Sketcher.Constraint("DistanceY", -1, 1, 6, 2, 2.0))
sketch13.addConstraint(Sketcher.Constraint("DistanceX", 1, 1, 1, 2, 25.755))
sketch13.addConstraint(Sketcher.Constraint("DistanceY", 0, 2, 0, 1, 3.055))
sketch13.addConstraint(Sketcher.Constraint("DistanceY", -1, 1, 0, 2, 21.65))
pad6 = doc.addObject("PartDesign::Pad", "Pad005")
body.addObject(pad6)
pad6.Profile = sketch13
pad6.Length = 0.5

doc.recompute()
